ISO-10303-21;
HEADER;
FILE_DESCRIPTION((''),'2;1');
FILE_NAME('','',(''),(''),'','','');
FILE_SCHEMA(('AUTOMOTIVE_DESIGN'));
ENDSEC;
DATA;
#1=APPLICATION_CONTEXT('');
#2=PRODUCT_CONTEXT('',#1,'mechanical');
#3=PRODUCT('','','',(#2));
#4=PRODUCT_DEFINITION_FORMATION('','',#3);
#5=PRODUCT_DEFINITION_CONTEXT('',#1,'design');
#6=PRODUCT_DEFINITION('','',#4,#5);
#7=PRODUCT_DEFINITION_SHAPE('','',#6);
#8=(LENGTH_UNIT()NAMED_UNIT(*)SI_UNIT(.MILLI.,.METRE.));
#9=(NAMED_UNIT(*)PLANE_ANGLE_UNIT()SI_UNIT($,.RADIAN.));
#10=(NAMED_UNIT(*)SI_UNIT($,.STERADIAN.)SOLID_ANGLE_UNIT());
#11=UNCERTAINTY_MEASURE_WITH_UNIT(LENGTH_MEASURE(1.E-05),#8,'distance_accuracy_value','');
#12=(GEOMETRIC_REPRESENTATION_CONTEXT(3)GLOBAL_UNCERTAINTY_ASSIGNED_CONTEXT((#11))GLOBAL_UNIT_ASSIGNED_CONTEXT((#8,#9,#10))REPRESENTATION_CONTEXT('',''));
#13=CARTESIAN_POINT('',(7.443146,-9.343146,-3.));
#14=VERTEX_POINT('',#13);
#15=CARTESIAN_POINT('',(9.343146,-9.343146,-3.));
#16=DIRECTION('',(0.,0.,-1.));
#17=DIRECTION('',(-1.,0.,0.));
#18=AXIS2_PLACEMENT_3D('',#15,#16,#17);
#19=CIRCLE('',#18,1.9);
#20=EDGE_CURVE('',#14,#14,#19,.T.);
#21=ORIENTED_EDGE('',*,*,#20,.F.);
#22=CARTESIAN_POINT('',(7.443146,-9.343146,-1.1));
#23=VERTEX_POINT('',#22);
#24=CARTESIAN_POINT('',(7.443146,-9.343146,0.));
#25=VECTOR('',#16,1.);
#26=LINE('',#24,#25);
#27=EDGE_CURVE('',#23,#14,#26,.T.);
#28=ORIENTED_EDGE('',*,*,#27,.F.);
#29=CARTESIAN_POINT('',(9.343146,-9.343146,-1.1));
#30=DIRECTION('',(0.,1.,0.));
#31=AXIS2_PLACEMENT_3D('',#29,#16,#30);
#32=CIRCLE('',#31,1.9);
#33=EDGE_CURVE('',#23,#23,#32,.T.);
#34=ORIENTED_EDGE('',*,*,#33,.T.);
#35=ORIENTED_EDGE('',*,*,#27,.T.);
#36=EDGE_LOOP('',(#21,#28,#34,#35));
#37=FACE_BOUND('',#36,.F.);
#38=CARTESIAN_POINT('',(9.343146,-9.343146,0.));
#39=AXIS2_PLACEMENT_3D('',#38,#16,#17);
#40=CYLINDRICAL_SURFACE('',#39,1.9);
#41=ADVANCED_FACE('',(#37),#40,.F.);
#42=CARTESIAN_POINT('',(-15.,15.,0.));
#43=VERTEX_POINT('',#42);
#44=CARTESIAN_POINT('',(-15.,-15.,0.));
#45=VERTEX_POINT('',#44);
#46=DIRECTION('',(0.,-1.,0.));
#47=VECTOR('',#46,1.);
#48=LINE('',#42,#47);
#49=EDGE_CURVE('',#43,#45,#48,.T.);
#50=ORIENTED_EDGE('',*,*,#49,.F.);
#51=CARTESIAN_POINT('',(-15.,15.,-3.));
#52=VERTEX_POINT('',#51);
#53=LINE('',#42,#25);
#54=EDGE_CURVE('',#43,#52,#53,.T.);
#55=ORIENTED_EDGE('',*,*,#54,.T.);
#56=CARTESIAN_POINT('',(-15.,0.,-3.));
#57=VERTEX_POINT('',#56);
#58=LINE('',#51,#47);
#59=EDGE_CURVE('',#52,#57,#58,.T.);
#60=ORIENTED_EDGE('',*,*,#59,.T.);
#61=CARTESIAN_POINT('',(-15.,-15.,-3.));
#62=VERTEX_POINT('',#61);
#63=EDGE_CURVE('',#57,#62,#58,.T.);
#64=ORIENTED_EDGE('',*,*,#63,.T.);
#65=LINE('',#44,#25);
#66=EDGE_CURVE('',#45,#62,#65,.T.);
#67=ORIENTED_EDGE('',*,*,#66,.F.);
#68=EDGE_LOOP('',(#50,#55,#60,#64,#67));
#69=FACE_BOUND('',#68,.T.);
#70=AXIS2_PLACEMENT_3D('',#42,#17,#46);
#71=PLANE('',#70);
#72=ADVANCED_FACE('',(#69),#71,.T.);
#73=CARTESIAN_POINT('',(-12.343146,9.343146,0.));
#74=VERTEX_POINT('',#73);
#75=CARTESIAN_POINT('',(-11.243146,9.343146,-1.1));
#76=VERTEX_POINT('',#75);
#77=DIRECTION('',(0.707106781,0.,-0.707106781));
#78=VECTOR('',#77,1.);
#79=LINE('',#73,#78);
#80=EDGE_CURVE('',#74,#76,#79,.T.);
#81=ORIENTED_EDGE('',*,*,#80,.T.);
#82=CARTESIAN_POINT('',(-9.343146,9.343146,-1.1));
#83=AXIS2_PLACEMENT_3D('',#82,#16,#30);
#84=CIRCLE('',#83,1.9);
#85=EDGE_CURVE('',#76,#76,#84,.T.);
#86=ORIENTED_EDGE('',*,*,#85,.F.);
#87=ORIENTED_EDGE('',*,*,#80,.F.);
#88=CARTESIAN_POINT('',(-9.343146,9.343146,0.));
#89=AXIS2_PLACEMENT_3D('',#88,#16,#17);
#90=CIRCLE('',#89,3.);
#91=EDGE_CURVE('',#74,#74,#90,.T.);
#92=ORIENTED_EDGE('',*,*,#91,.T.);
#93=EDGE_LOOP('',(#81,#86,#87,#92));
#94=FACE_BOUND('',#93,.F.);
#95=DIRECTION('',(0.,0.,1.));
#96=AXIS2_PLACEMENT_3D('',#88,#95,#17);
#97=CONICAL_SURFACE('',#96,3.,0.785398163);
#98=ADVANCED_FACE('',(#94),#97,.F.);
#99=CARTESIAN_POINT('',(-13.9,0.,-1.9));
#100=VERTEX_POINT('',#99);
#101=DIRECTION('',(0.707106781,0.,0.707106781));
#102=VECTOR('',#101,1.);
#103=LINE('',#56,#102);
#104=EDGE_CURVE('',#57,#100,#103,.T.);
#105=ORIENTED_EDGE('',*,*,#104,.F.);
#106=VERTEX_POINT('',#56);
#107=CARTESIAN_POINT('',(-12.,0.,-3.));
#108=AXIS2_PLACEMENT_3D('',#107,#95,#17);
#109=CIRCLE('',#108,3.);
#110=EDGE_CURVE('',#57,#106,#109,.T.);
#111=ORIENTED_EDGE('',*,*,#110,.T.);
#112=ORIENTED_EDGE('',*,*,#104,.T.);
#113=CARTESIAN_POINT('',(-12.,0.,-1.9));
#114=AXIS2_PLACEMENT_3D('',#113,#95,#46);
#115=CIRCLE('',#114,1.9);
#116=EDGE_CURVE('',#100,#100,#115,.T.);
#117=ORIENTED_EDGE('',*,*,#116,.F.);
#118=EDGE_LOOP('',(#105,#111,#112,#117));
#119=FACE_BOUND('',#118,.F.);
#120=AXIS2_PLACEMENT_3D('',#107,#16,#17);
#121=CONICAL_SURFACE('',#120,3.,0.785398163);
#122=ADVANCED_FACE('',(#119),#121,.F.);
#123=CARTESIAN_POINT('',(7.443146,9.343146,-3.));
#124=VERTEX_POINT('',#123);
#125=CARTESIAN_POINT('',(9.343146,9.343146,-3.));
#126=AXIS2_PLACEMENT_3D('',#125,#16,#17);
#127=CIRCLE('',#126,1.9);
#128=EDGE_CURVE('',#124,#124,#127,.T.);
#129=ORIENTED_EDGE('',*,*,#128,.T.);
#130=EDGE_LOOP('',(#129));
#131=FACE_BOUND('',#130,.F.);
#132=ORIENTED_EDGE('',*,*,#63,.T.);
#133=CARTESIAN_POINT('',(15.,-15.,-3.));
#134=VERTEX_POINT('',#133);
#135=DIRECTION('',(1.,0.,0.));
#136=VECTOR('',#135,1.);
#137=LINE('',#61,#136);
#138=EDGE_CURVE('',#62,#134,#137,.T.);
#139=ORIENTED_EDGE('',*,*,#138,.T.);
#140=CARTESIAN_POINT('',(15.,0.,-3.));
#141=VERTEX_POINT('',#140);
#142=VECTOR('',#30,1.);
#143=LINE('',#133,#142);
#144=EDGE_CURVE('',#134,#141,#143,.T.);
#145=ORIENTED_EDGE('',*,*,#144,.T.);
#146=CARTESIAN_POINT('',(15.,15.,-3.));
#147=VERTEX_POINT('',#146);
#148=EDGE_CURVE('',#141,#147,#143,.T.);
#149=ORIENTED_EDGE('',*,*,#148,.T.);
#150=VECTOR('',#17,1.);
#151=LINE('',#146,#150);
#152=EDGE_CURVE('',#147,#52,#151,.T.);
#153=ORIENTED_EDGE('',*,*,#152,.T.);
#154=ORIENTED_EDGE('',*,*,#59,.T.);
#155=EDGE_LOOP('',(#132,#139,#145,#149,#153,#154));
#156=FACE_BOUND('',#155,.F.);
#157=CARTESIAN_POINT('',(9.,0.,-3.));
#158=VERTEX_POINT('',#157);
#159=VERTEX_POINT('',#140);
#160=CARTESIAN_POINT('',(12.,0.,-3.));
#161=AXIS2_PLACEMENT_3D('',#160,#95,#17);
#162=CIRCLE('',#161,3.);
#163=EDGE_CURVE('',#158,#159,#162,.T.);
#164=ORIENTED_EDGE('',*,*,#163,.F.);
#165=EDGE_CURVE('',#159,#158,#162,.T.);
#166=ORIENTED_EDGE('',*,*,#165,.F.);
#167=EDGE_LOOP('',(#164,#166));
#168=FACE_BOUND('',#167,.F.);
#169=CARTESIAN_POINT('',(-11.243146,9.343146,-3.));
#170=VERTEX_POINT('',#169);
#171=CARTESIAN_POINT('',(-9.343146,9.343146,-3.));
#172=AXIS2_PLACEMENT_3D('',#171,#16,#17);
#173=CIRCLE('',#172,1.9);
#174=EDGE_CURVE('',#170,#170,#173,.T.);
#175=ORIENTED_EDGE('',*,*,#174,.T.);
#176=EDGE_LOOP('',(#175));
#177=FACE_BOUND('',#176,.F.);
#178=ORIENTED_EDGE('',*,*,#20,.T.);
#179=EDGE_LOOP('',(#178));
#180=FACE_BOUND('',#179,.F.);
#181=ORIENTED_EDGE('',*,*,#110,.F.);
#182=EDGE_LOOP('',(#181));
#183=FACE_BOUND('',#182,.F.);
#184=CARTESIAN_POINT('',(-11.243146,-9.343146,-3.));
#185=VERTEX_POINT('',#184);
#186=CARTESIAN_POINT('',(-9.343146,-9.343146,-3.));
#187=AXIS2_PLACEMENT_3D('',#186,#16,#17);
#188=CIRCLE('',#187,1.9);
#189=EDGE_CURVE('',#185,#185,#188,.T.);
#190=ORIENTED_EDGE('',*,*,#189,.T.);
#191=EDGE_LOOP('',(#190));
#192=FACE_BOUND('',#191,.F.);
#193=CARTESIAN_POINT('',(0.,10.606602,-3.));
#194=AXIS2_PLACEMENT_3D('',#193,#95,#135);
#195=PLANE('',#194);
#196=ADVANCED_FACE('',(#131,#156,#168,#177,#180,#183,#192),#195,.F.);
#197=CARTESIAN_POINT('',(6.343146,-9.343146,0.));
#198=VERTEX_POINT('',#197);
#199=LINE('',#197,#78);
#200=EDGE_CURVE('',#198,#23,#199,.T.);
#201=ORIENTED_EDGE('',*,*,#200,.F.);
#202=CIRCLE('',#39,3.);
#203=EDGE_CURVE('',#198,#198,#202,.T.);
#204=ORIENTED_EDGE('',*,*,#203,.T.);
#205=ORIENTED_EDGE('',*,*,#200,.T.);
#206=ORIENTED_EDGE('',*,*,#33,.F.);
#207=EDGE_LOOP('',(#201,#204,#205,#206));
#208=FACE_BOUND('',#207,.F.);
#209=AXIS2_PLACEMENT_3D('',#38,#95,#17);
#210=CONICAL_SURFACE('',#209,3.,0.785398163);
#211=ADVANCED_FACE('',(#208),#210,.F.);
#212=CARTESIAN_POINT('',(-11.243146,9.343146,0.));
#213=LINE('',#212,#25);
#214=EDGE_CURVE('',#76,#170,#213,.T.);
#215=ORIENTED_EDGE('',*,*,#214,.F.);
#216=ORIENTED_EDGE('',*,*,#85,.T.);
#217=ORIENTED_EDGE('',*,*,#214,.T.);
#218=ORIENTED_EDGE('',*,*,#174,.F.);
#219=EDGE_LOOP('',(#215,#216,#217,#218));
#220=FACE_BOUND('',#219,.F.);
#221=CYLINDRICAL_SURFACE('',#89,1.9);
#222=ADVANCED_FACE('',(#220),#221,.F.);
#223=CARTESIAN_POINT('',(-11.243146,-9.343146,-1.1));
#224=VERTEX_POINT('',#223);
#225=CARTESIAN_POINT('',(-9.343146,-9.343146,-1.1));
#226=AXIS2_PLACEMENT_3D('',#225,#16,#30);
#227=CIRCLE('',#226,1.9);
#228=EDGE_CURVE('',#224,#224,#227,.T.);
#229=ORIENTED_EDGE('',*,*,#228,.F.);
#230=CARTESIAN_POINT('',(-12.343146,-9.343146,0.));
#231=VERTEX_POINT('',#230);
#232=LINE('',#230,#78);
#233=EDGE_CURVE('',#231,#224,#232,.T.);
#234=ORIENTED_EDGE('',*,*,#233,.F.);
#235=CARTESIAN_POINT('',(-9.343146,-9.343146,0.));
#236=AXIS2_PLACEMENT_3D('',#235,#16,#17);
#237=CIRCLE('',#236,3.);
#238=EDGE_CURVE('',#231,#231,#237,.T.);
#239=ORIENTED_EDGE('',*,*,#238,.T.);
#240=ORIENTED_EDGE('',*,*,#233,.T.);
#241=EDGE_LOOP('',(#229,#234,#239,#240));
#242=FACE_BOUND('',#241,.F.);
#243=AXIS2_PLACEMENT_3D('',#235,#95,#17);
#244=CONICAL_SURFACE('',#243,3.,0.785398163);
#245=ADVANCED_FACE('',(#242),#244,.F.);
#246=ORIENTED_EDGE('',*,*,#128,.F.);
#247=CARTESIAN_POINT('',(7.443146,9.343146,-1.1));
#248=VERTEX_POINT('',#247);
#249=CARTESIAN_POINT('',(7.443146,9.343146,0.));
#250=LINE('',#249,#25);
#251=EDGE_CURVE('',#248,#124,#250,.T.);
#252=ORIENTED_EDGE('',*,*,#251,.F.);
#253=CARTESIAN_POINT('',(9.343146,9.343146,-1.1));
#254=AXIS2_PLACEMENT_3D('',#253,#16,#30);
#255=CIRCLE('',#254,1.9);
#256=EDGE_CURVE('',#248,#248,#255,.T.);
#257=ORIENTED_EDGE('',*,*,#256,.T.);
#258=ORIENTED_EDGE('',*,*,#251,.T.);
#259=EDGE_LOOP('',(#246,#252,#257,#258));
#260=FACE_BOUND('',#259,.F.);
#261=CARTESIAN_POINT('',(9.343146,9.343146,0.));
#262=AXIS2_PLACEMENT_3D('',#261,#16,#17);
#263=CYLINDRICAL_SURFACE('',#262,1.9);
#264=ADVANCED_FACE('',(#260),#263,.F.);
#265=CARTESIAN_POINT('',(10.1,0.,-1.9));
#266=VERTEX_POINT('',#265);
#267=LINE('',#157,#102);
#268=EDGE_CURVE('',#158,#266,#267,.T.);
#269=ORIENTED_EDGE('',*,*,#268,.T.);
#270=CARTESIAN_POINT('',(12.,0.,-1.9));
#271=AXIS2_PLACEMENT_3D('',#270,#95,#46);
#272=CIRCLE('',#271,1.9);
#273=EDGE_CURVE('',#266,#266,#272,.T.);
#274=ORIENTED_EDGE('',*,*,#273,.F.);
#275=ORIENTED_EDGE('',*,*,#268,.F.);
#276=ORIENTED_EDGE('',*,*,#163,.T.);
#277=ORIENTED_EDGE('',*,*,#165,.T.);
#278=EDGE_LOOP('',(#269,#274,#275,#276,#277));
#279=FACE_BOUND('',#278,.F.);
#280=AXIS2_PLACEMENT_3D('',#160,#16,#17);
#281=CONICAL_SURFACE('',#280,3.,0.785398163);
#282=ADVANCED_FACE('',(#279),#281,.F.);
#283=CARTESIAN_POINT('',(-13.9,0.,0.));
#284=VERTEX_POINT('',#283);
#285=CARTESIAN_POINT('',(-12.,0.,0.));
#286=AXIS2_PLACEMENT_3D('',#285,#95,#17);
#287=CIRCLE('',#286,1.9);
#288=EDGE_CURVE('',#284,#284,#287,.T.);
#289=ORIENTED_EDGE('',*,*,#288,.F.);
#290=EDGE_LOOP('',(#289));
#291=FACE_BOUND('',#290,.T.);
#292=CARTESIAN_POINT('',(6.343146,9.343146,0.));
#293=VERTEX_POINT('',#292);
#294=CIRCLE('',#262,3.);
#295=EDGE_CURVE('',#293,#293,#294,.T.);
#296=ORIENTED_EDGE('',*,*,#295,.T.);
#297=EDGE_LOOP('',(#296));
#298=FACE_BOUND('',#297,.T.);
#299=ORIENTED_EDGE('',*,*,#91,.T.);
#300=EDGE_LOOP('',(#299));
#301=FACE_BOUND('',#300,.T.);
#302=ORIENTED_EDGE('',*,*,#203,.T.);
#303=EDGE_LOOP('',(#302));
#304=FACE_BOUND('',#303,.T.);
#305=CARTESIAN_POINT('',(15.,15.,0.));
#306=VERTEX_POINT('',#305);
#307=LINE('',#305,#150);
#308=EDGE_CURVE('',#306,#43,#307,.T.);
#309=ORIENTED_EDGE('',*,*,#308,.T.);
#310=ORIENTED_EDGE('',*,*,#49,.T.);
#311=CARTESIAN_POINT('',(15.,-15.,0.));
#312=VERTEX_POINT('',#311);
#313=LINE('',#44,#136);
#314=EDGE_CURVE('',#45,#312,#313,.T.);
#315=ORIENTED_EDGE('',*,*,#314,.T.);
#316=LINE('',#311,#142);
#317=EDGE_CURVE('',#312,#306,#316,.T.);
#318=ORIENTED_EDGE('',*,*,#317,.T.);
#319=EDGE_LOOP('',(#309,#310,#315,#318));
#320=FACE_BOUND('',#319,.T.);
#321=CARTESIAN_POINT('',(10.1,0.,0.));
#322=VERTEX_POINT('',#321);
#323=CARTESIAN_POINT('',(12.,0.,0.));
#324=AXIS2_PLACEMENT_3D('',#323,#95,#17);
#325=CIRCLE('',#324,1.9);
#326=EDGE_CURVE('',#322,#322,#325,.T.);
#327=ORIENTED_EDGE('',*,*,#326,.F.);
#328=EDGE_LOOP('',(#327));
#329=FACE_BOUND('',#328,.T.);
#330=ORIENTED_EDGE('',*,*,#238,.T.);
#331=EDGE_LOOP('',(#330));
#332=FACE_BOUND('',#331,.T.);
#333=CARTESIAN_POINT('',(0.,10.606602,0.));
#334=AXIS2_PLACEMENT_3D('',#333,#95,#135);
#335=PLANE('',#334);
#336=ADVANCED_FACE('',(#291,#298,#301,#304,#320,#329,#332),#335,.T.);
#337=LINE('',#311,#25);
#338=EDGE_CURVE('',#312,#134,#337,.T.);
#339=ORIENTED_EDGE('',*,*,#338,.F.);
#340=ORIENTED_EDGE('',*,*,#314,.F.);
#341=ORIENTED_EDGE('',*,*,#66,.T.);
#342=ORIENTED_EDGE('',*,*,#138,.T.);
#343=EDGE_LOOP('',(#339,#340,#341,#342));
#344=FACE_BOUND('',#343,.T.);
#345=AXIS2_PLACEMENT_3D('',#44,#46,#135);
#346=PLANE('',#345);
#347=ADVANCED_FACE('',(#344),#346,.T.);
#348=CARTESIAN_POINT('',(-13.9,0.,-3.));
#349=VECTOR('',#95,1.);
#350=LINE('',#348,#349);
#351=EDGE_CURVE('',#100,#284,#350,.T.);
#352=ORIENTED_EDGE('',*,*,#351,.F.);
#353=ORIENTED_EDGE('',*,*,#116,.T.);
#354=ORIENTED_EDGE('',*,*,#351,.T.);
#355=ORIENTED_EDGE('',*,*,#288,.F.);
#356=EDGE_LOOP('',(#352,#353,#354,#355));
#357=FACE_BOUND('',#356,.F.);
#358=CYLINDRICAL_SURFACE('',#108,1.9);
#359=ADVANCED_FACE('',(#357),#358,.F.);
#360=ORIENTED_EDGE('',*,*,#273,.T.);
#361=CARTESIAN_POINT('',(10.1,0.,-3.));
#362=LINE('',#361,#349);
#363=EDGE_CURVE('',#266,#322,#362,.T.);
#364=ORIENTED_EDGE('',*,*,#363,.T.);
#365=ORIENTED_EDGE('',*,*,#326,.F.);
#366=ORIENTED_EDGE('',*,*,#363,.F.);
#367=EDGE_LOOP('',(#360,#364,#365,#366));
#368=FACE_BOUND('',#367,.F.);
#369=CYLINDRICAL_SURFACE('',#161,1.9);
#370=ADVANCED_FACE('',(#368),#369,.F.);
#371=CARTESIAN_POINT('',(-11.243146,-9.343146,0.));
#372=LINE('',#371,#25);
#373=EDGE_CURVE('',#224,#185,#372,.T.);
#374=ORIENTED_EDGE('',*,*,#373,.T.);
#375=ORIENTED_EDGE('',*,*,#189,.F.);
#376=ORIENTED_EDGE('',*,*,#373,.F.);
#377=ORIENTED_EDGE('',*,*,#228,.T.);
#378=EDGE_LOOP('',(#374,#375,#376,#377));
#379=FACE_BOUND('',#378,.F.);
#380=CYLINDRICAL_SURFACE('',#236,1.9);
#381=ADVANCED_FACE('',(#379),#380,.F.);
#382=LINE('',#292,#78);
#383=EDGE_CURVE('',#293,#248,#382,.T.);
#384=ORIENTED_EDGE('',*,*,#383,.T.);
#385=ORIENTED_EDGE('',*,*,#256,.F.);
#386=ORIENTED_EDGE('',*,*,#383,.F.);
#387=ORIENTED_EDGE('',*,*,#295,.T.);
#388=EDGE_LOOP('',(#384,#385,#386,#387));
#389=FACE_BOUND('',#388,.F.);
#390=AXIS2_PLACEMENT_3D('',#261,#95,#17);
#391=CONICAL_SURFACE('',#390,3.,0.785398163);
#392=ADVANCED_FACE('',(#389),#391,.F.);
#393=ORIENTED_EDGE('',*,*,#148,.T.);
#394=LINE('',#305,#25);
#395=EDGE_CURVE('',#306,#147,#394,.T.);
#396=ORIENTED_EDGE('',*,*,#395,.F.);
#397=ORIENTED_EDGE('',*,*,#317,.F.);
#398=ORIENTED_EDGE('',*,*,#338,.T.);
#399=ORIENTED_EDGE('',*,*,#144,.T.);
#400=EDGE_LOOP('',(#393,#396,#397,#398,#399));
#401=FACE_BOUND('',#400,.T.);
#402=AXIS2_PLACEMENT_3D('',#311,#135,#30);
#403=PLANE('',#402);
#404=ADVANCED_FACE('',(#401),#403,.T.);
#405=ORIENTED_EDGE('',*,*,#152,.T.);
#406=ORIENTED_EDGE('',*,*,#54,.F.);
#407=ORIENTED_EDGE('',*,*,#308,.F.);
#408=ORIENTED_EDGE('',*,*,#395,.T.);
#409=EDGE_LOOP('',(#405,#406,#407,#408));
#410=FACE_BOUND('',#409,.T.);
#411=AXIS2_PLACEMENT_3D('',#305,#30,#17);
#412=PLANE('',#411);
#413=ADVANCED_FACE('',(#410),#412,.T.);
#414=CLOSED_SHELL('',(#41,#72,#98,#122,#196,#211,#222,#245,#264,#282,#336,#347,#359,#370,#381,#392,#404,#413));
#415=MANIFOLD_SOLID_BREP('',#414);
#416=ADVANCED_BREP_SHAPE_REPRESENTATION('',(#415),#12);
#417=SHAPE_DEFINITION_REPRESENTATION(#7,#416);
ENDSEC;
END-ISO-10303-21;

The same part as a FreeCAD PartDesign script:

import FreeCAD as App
import Part
import Sketcher
from FreeCAD import Vector

doc = App.newDocument("Part")
body = doc.addObject("PartDesign::Body", "Body")

sketch1 = doc.addObject("Sketcher::SketchObject", "Sketch")
body.addObject(sketch1)
sketch1.AttachmentSupport = (doc.XY_Plane, [""])
sketch1.MapMode = "FlatFace"
sketch1.addGeometry(Part.LineSegment(Vector(15, 15, 0), Vector(-15, 15, 0)), False)
sketch1.addGeometry(Part.LineSegment(Vector(-15, 15, 0), Vector(-15, -15, 0)), False)
sketch1.addGeometry(Part.LineSegment(Vector(-15, -15, 0), Vector(15, -15, 0)), False)
sketch1.addGeometry(Part.LineSegment(Vector(15, -15, 0), Vector(15, 15, 0)), False)
sketch1.addConstraint(Sketcher.Constraint("Coincident", 0, 2, 1, 1))
sketch1.addConstraint(Sketcher.Constraint("Coincident", 1, 2, 2, 1))
sketch1.addConstraint(Sketcher.Constraint("Coincident", 2, 2, 3, 1))
sketch1.addConstraint(Sketcher.Constraint("Coincident", 3, 2, 0, 1))
sketch1.addConstraint(Sketcher.Constraint("Horizontal", 0))
sketch1.addConstraint(Sketcher.Constraint("Vertical", 1))
sketch1.addConstraint(Sketcher.Constraint("Horizontal", 2))
sketch1.addConstraint(Sketcher.Constraint("Vertical", 3))
sketch1.addConstraint(Sketcher.Constraint("Symmetric", 0, 2, 2, 2, -1, 1))
sketch1.addConstraint(Sketcher.Constraint("Equal", 2, 1))
sketch1.addConstraint(Sketcher.Constraint("DistanceX", 0, 2, 0, 1, 30.0))
pad1 = doc.addObject("PartDesign::Pad", "Pad")
body.addObject(pad1)
pad1.Profile = sketch1
pad1.Length = 3
pad1.Reversed = True

sketch2 = doc.addObject("Sketcher::SketchObject", "Sketch001")
body.addObject(sketch2)
sketch2.AttachmentSupport = (doc.XY_Plane, [""])
sketch2.MapMode = "FlatFace"
sketch2.addGeometry(Part.Circle(Vector(-9.3, 9.3, 0), Vector(0, 0, 1), 1.9), False)
sketch2.addGeometry(Part.Circle(Vector(9.3, 9.3, 0), Vector(0, 0, 1), 1.9), False)
sketch2.addGeometry(Part.Circle(Vector(-9.3, -9.3, 0), Vector(0, 0, 1), 1.9), False)
sketch2.addGeometry(Part.Circle(Vector(9.3, -9.3, 0), Vector(0, 0, 1), 1.9), False)
sketch2.addConstraint(Sketcher.Constraint("Equal", 0, 1))
sketch2.addConstraint(Sketcher.Constraint("Equal", 1, 2))
sketch2.addConstraint(Sketcher.Constraint("Equal", 2, 3))
sketch2.addConstraint(Sketcher.Constraint("Symmetric", 1, 3, 2, 3, -1, 1))
sketch2.addConstraint(Sketcher.Constraint("Symmetric", 0, 3, 3, 3, -1, 1))
sketch2.addConstraint(Sketcher.Constraint("Symmetric", 0, 3, 1, 3, -2))
sketch2.addConstraint(Sketcher.Constraint("Diameter", 0, 3.8))
sketch2.addConstraint(Sketcher.Constraint("DistanceX", 0, 3, -1, 1, 9.343146))
sketch2.addConstraint(Sketcher.Constraint("DistanceY", -1, 1, 0, 3, 9.343146))
doc.recompute()
hole = doc.addObject("PartDesign::Hole", "Hole")
body.addObject(hole)
hole.Profile = sketch2
hole.ThreadType = "None"
hole.Diameter = 3.8
hole.DepthType = "ThroughAll"
hole.HoleCutType = "Countersink"
hole.HoleCutDiameter = 6
hole.HoleCutCountersinkAngle = 90

sketch3 = doc.addObject("Sketcher::SketchObject", "Sketch002")
body.addObject(sketch3)
sketch3.AttachmentSupport = (doc.XY_Plane, [""])
sketch3.MapMode = "FlatFace"
sketch3.AttachmentOffset = App.Placement(Vector(0, 0, -3), App.Rotation())
sketch3.addGeometry(Part.Circle(Vector(-12, 0, 0), Vector(0, 0, 1), 1.9), False)
sketch3.addGeometry(Part.Circle(Vector(12, 0, 0), Vector(0, 0, 1), 1.9), False)
sketch3.addConstraint(Sketcher.Constraint("Equal", 0, 1))
sketch3.addConstraint(Sketcher.Constraint("Symmetric", 0, 3, 1, 3, -1, 1))
sketch3.addConstraint(Sketcher.Constraint("PointOnObject", 0, 3, -1))
sketch3.addConstraint(Sketcher.Constraint("Diameter", 0, 3.8))
sketch3.addConstraint(Sketcher.Constraint("DistanceX", 0, 3, -1, 1, 12.0))
doc.recompute()
hole2 = doc.addObject("PartDesign::Hole", "Hole001")
body.addObject(hole2)
hole2.Profile = sketch3
hole2.ThreadType = "None"
hole2.Diameter = 3.8
hole2.DepthType = "ThroughAll"
hole2.HoleCutType = "Countersink"
hole2.HoleCutDiameter = 6
hole2.HoleCutCountersinkAngle = 90
hole2.Reversed = True

doc.recompute()
